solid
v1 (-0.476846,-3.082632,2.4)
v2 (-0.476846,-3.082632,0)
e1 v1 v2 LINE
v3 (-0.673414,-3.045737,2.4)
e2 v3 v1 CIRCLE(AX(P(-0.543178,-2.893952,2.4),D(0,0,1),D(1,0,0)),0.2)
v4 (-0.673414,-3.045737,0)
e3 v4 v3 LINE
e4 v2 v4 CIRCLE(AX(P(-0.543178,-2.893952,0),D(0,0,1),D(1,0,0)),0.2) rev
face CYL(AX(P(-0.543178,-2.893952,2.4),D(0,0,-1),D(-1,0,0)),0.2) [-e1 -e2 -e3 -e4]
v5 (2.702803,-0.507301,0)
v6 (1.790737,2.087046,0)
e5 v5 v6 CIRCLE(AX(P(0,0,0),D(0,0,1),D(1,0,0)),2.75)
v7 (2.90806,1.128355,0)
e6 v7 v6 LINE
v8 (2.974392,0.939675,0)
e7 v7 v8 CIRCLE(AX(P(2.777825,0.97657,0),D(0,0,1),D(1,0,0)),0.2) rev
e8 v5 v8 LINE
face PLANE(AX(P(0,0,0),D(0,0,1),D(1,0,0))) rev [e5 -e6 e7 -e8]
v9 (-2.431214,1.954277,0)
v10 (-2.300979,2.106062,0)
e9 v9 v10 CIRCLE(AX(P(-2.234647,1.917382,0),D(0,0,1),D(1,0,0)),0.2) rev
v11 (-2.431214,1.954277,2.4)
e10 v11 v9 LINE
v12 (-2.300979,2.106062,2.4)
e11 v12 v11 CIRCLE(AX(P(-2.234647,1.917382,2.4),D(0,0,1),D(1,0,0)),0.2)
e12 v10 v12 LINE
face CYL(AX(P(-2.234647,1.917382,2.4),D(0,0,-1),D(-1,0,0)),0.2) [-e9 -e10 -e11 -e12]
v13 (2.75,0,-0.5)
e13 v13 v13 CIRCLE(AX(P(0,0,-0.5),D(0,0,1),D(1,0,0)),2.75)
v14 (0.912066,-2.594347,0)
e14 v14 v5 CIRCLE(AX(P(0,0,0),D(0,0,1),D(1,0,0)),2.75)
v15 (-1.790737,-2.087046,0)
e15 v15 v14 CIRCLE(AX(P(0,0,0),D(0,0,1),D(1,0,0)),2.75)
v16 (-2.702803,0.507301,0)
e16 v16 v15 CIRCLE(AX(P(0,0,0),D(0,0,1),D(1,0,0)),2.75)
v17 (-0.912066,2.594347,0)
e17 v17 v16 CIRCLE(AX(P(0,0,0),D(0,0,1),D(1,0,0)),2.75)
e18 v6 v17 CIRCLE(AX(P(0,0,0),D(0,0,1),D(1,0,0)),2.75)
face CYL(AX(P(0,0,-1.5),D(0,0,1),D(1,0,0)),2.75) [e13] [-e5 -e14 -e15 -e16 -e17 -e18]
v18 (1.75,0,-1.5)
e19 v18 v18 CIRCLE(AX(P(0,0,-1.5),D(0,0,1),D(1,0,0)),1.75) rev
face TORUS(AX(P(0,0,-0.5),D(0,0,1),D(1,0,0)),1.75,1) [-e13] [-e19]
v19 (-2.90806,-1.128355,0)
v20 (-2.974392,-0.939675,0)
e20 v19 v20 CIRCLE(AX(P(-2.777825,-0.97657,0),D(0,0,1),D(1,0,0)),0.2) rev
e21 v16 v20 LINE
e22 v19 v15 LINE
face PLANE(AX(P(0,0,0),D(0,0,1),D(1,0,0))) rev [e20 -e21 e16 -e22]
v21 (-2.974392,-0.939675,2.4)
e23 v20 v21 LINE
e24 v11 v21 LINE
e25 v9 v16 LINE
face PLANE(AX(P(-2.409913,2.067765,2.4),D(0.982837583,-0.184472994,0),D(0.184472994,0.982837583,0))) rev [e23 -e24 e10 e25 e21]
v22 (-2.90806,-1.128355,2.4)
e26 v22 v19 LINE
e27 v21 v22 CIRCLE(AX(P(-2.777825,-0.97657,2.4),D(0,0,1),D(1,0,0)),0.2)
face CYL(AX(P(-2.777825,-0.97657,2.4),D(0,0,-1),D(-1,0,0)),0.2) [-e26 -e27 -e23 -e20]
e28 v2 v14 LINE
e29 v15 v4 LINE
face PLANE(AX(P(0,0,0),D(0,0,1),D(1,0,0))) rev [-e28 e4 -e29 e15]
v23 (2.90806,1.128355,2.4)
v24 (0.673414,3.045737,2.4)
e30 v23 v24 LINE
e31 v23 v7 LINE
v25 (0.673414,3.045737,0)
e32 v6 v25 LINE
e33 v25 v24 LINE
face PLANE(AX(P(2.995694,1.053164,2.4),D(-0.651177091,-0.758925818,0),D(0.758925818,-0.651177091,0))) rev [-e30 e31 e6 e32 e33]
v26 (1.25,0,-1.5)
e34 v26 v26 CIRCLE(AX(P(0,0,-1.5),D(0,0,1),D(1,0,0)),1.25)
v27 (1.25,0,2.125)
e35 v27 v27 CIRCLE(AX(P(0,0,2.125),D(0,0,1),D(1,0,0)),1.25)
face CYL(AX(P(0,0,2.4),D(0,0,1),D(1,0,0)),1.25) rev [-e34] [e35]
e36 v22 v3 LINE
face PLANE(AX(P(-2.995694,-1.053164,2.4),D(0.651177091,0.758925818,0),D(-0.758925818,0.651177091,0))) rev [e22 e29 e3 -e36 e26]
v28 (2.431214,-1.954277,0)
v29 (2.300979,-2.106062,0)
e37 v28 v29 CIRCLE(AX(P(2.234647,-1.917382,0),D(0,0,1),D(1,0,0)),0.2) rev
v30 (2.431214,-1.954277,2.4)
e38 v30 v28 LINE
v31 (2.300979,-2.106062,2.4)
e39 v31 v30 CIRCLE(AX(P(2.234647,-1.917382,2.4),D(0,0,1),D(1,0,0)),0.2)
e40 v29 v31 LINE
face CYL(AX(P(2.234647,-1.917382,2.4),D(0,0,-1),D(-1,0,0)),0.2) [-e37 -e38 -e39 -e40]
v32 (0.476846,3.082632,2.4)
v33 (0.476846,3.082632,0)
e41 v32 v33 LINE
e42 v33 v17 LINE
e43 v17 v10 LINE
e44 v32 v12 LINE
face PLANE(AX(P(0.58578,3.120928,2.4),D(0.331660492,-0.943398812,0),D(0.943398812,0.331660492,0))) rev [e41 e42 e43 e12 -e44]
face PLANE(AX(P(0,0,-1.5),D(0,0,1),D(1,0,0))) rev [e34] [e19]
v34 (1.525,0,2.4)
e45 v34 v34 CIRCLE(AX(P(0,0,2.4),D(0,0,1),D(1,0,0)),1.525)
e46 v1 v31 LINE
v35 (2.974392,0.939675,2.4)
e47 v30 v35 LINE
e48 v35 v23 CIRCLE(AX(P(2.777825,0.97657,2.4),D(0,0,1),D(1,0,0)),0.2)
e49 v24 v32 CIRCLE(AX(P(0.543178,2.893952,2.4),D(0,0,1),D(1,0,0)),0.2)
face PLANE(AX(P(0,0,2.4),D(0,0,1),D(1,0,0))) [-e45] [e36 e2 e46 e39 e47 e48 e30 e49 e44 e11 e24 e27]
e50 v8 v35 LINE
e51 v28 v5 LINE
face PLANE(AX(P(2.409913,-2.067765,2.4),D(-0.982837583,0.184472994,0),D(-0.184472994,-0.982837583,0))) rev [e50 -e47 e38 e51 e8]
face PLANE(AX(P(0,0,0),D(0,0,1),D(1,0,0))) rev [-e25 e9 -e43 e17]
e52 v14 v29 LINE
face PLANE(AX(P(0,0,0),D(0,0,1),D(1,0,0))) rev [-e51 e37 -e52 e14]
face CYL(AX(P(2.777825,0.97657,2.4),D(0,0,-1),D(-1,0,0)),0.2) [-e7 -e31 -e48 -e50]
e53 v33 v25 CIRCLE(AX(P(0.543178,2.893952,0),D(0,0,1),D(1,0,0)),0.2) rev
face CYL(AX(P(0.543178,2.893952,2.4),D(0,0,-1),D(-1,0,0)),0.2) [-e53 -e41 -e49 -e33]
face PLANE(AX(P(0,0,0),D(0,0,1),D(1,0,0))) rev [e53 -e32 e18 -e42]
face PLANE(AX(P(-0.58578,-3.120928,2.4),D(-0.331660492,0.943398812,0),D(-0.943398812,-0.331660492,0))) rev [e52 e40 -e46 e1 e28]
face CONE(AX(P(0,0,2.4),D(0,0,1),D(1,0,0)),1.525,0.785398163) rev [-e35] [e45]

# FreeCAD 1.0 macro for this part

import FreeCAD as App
import Part
import Sketcher
from FreeCAD import Vector
Q = App.Units.Quantity


def edges_at(feature, points):
    """Names of the edges that pass closest to the given points."""
    edges = feature.Shape.Edges
    near = lambda p: min(range(len(edges)), key=lambda i: edges[i].distToShape(Part.Vertex(*p))[0])
    return sorted({f"Edge{near(p) + 1}" for p in points})

doc = App.newDocument("Part")
body = doc.addObject("PartDesign::Body", "Body")

# Sketch on XY plane
sketch1 = body.newObject("Sketcher::SketchObject", "Sketch")
sketch1.AttachmentSupport = (doc.getObject("XY_Plane"), [""])
sketch1.MapMode = "FlatFace"
sketch1.addGeometry(Part.LineSegment(Vector(2.4, -2.1, 0), Vector(3, 1.1, 0)), False)
sketch1.addGeometry(Part.LineSegment(Vector(3, 1.1, 0), Vector(0.6, 3.1, 0)), False)
sketch1.addGeometry(Part.LineSegment(Vector(0.6, 3.1, 0), Vector(-2.4, 2.1, 0)), False)
sketch1.addGeometry(Part.LineSegment(Vector(-2.4, 2.1, 0), Vector(-3, -1.1, 0)), False)
sketch1.addGeometry(Part.LineSegment(Vector(-3, -1.1, 0), Vector(-0.6, -3.1, 0)), False)
sketch1.addGeometry(Part.LineSegment(Vector(-0.6, -3.1, 0), Vector(2.4, -2.1, 0)), False)
sketch1.addConstraint(Sketcher.Constraint("Coincident", 0, 2, 1, 1))
sketch1.addConstraint(Sketcher.Constraint("Coincident", 1, 2, 2, 1))
sketch1.addConstraint(Sketcher.Constraint("Coincident", 2, 2, 3, 1))
sketch1.addConstraint(Sketcher.Constraint("Coincident", 3, 2, 4, 1))
sketch1.addConstraint(Sketcher.Constraint("Coincident", 4, 2, 5, 1))
sketch1.addConstraint(Sketcher.Constraint("Coincident", 5, 2, 0, 1))
sketch1.addConstraint(Sketcher.Constraint("Symmetric", 0, 2, 3, 2, -1, 1))
sketch1.addConstraint(Sketcher.Constraint("Symmetric", 1, 2, 4, 2, -1, 1))
sketch1.addConstraint(Sketcher.Constraint("Symmetric", 2, 2, 5, 2, -1, 1))
sketch1.addConstraint(Sketcher.Constraint("Equal", 0, 1))
sketch1.addConstraint(Sketcher.Constraint("Equal", 1, 2))
sketch1.addConstraint(Sketcher.Constraint("DistanceY", 0, 2, 2, 2, Q("1.014601 mm")))
sketch1.addConstraint(Sketcher.Constraint("DistanceX", -1, 1, 1, 2, Q("0.58578 mm")))
sketch1.addConstraint(Sketcher.Constraint("DistanceY", -1, 1, 1, 2, Q("3.120928 mm")))
sketch1.addConstraint(Sketcher.Constraint("DistanceX", 3, 2, 2, 2, Q("0.58578 mm")))
pad1 = body.newObject("PartDesign::Pad", "Pad")
pad1.Profile = sketch1
pad1.Length = 2.4

# Sketch on XY plane
sketch2 = body.newObject("Sketcher::SketchObject", "Sketch001")
sketch2.AttachmentSupport = (doc.getObject("XY_Plane"), [""])
sketch2.MapMode = "FlatFace"
sketch2.AttachmentOffset = App.Placement(Vector(0, 0, 2.4), App.Rotation())
sketch2.addGeometry(Part.Circle(Vector(0, 0, 0), Vector(0, 0, 1), 2.8), False)
sketch2.addConstraint(Sketcher.Constraint("Coincident", 0, 3, -1, 1))
sketch2.addConstraint(Sketcher.Constraint("Diameter", 0, Q("5.5 mm")))
pad2 = body.newObject("PartDesign::Pad", "Pad001")
pad2.Profile = sketch2
pad2.Length = 3.9
pad2.Reversed = True
doc.recompute()

fillet = body.newObject("PartDesign::Fillet", "Fillet")
fillet.Base = (pad2, edges_at(pad2, [(-2.75, 0, -1.5)]))
fillet.Radius = 1
doc.recompute()

fillet2 = body.newObject("PartDesign::Fillet", "Fillet001")
fillet2.Base = (fillet, edges_at(fillet, [
    (-0.586, -3.121, 1.2),
    (-2.996, -1.053, 1.2),
    (-2.41, 2.068, 1.2),
    (0.586, 3.121, 1.2),
    (2.996, 1.053, 1.2),
    (2.41, -2.068, 1.2),
]))
fillet2.Radius = 0.2

# Sketch on XY plane
sketch3 = body.newObject("Sketcher::SketchObject", "Sketch002")
sketch3.AttachmentSupport = (doc.getObject("XY_Plane"), [""])
sketch3.MapMode = "FlatFace"
sketch3.AttachmentOffset = App.Placement(Vector(0, 0, 2.4), App.Rotation())
sketch3.addGeometry(Part.Circle(Vector(0, 0, 0), Vector(0, 0, 1), 1.2), False)
sketch3.addConstraint(Sketcher.Constraint("Coincident", 0, 3, -1, 1))
sketch3.addConstraint(Sketcher.Constraint("Diameter", 0, Q("2.5 mm")))
doc.recompute()
hole = body.newObject("PartDesign::Hole", "Hole")
hole.Profile = sketch3
hole.ThreadType = "None"
hole.Diameter = 2.5
hole.DepthType = "Dimension"
hole.Depth = 7.5
hole.DrillPoint = "Angled"
hole.DrillPointAngle = 118
hole.HoleCutType = "Countersink"
hole.HoleCutDiameter = 3.05
hole.HoleCutCountersinkAngle = 90

doc.recompute()
